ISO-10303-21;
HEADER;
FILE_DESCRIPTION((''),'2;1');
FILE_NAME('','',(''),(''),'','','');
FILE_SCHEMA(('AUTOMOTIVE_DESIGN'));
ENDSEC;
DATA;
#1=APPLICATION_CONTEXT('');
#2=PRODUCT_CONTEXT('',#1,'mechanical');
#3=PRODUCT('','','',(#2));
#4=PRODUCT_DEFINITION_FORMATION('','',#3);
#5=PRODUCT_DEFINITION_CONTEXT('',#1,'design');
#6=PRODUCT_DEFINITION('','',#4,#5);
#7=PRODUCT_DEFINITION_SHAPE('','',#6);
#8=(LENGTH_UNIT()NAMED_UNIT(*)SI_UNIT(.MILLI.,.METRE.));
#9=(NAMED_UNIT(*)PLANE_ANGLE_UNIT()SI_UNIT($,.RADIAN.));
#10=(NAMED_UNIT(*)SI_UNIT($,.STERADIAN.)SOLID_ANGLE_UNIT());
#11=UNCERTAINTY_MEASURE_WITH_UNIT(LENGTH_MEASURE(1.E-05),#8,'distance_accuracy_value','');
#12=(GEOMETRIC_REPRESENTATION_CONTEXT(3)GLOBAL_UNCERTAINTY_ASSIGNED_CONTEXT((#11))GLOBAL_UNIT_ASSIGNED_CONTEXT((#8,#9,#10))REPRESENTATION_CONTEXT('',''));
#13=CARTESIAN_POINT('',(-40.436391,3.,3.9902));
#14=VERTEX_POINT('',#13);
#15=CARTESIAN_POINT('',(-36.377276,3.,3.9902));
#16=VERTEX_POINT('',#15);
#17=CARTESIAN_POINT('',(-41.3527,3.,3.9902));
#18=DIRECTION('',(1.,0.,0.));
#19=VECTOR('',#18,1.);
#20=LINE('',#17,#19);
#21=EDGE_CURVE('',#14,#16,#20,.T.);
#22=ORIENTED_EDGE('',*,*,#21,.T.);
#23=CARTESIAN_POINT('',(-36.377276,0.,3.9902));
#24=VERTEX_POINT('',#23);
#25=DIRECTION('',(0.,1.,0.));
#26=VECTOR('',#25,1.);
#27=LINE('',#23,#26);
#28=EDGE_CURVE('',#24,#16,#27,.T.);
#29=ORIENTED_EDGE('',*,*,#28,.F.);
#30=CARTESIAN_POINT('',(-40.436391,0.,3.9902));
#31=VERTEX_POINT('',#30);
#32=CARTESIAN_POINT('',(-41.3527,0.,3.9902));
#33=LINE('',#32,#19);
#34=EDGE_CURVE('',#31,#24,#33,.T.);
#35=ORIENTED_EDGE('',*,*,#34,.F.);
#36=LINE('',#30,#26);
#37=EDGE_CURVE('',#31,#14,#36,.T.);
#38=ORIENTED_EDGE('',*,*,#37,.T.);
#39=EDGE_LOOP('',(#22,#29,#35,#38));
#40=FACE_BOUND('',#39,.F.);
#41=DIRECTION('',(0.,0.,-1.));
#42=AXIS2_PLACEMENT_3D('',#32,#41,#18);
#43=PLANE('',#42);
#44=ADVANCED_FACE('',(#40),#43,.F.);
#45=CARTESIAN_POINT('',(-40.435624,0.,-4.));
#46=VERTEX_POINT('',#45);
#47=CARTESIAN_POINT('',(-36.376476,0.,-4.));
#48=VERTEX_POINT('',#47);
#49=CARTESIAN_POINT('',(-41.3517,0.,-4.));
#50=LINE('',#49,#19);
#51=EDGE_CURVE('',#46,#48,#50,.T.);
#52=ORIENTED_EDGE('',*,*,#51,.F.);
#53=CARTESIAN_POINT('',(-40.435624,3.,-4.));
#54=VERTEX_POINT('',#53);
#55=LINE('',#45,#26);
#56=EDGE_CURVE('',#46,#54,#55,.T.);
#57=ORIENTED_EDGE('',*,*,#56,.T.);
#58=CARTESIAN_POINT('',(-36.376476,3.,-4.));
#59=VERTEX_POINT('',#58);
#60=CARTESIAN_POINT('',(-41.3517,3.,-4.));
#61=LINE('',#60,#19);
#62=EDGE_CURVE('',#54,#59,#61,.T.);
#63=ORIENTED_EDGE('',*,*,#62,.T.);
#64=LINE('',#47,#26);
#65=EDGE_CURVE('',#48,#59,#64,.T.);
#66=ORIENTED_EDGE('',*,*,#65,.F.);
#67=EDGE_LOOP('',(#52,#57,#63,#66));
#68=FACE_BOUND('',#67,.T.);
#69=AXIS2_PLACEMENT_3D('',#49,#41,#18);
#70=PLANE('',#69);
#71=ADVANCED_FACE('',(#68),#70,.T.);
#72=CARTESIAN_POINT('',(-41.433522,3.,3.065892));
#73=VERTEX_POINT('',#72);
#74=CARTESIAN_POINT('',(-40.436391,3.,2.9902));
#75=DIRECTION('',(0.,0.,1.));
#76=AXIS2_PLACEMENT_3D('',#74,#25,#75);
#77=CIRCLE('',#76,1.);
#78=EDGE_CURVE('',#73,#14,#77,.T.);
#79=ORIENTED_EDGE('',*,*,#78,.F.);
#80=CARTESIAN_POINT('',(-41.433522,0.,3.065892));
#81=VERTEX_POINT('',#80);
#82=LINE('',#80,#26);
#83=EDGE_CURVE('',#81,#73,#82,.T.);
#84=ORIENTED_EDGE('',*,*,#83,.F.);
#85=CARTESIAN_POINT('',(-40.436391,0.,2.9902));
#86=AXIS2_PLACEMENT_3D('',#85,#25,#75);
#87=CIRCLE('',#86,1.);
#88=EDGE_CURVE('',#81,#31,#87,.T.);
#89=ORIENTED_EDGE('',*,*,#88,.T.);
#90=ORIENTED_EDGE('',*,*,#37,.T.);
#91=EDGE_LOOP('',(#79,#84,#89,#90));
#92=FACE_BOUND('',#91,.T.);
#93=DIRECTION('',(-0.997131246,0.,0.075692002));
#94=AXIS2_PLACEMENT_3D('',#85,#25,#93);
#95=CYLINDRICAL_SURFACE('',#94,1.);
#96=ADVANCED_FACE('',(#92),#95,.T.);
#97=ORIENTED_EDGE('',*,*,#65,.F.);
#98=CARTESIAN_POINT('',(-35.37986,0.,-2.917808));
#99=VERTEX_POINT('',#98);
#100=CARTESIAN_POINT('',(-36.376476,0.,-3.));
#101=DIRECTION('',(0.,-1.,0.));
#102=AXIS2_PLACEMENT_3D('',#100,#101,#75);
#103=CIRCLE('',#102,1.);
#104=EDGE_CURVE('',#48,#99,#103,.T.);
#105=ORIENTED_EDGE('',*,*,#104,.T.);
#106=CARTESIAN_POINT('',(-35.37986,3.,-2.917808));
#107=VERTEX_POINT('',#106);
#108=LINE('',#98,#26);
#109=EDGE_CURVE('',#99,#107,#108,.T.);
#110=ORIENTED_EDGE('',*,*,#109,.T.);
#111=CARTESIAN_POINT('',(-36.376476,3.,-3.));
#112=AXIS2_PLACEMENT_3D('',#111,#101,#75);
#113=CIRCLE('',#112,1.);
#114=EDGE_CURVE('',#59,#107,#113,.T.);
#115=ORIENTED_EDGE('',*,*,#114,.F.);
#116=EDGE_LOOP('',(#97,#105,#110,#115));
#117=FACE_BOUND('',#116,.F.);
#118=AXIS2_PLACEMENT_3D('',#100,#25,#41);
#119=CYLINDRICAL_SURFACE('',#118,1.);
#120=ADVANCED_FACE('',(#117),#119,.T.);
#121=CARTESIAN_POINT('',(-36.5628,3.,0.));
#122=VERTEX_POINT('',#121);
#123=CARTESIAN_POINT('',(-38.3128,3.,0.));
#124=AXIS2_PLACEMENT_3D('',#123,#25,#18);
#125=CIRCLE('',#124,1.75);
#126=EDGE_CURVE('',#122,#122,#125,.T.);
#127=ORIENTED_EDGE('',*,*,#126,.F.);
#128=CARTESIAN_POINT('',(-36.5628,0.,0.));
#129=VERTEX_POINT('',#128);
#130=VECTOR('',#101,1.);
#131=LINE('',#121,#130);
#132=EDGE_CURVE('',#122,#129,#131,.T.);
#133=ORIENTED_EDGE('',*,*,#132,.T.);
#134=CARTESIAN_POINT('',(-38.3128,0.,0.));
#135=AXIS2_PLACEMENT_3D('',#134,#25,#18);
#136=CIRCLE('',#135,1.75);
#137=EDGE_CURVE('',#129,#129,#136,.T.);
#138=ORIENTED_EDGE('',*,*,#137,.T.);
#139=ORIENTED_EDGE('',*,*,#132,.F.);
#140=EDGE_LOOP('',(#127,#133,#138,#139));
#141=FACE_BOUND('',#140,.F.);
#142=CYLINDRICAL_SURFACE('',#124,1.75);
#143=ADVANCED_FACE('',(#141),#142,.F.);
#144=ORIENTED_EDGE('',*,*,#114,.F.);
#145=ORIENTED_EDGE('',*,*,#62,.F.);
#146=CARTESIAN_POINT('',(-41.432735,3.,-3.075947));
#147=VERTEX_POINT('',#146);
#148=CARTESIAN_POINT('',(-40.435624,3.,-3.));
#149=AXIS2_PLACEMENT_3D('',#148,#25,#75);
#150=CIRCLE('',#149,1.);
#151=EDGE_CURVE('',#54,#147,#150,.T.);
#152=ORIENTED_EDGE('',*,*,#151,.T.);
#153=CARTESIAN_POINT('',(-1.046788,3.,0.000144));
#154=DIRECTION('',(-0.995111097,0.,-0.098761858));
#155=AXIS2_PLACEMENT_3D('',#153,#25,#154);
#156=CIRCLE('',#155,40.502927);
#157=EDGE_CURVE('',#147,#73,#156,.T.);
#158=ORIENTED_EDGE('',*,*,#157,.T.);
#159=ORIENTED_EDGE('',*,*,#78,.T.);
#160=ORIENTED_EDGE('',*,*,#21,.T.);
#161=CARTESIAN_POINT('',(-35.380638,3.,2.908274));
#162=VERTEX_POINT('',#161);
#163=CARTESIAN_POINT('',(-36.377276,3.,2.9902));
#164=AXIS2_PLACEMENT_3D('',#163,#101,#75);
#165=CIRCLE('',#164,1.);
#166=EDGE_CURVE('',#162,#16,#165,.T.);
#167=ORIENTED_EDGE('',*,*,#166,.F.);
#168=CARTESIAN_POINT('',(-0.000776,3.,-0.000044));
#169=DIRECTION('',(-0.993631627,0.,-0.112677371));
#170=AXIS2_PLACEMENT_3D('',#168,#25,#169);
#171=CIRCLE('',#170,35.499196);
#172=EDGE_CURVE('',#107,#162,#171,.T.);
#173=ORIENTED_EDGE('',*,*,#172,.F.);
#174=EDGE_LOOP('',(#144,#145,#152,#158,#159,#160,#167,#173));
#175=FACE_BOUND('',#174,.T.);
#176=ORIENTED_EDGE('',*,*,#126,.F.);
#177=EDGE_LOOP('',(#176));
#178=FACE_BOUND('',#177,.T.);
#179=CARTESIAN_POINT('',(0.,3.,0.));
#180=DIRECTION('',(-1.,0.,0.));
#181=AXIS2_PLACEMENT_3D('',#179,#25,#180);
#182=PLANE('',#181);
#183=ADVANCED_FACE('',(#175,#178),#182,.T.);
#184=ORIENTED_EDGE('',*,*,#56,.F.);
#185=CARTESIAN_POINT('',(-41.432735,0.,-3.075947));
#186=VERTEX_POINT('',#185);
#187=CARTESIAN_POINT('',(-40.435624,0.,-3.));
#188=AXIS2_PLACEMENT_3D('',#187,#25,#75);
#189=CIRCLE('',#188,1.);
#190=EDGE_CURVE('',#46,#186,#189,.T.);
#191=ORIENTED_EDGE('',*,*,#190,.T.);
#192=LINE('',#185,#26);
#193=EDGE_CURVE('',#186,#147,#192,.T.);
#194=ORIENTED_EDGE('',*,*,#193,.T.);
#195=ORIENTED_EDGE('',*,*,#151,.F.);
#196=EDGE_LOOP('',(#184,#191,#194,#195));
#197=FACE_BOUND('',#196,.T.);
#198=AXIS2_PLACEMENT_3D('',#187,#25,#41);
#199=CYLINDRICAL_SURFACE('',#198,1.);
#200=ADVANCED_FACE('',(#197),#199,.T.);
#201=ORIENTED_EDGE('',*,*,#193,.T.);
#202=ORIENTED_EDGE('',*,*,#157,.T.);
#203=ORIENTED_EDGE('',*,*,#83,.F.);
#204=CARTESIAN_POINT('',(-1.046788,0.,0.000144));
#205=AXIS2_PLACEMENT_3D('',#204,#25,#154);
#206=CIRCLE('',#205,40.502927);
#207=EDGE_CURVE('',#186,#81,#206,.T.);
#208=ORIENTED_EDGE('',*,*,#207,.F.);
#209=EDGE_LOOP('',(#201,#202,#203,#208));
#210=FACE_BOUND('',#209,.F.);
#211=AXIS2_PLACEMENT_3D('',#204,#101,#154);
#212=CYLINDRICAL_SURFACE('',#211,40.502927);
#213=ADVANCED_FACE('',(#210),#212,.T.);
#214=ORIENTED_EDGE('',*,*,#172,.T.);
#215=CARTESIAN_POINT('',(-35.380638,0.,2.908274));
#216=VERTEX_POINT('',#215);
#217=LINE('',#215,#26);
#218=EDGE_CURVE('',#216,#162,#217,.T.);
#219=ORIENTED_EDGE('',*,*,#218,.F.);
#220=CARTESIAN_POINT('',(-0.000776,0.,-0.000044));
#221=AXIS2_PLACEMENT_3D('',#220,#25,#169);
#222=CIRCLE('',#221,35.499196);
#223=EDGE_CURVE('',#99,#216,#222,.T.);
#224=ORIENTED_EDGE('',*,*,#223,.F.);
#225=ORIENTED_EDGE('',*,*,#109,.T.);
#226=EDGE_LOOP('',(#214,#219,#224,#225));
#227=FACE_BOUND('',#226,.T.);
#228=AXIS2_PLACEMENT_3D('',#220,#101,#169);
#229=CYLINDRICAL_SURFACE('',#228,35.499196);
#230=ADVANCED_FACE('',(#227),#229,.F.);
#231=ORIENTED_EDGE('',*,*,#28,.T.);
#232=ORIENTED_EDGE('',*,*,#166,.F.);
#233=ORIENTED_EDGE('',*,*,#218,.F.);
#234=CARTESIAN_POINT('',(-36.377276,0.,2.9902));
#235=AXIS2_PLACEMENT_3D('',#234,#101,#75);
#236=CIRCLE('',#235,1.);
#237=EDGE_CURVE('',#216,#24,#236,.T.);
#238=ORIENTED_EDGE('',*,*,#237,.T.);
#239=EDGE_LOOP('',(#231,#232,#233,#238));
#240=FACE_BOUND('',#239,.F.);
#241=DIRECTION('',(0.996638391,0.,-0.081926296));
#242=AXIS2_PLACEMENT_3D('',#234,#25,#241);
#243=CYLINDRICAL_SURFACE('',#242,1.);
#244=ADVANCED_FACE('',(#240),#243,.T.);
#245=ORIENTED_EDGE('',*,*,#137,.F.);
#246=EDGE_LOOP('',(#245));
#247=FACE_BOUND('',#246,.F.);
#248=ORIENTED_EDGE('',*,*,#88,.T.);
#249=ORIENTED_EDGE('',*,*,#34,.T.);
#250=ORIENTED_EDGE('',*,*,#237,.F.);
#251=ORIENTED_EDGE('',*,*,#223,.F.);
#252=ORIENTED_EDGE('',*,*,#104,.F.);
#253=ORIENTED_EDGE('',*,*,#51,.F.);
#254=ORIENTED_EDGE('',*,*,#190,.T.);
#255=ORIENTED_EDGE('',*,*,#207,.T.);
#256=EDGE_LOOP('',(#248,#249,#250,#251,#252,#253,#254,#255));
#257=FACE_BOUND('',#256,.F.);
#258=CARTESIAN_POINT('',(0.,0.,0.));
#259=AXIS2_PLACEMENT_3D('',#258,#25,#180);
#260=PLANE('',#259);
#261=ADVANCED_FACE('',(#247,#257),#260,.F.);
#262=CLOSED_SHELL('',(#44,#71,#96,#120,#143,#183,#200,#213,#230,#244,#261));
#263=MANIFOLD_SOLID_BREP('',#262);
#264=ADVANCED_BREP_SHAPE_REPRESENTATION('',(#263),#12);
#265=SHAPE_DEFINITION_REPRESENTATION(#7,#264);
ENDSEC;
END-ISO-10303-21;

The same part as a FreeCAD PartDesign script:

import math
import FreeCAD as App
import Part
import Sketcher


def edges_at(feature, points):
    """Names of the edges that pass closest to the given points."""
    edges = feature.Shape.Edges
    near = lambda p: min(range(len(edges)), key=lambda i: edges[i].distToShape(Part.Vertex(*p))[0])
    return sorted({f"Edge{near(p) + 1}" for p in points})

doc = App.newDocument("Part")
body = doc.addObject("PartDesign::Body", "Body")

# Sketch on XZ plane
sketch1 = body.newObject("Sketcher::SketchObject", "Sketch")
sketch1.AttachmentSupport = (doc.getObject("XZ_Plane"), [""])
sketch1.MapMode = "FlatFace"
sketch1.addGeometry(Part.LineSegment(App.Vector(-35.2739, -4, 0), App.Vector(-41.3517, -4, 0)), False)
sketch1.addGeometry(Part.ArcOfCircle(Part.Circle(App.Vector(-1.046788, 0.000144, 0), App.Vector(0, 0, 1), 40.502927), math.radians(174.346464), math.radians(185.667877)), False)
sketch1.addGeometry(Part.LineSegment(App.Vector(-41.3527, 3.9902, 0), App.Vector(-35.275, 3.9902, 0)), False)
sketch1.addGeometry(Part.ArcOfCircle(Part.Circle(App.Vector(0, 0, 0), App.Vector(0, 0, 1), 35.499972), math.radians(173.546309), math.radians(186.469607)), False)
sketch1.addConstraint(Sketcher.Constraint("Coincident", 0, 2, 1, 2))
sketch1.addConstraint(Sketcher.Constraint("Coincident", 1, 1, 2, 1))
sketch1.addConstraint(Sketcher.Constraint("Coincident", 2, 2, 3, 1))
sketch1.addConstraint(Sketcher.Constraint("Coincident", 3, 2, 0, 1))
sketch1.addConstraint(Sketcher.Constraint("Horizontal", 0))
sketch1.addConstraint(Sketcher.Constraint("Horizontal", 2))
sketch1.addConstraint(Sketcher.Constraint("Coincident", 3, 3, -1, 1))
sketch1.addConstraint(Sketcher.Constraint("PointOnObject", 1, 3, -1))
sketch1.addConstraint(Sketcher.Constraint("Radius", 3, 35.5))
sketch1.addConstraint(Sketcher.Constraint("DistanceY", 0, 2, -1, 1, 4.0))
sketch1.addConstraint(Sketcher.Constraint("Radius", 1, 40.503))
sketch1.addConstraint(Sketcher.Constraint("DistanceY", 1, 3, 1, 1, 3.99))
sketch1.addConstraint(Sketcher.Constraint("DistanceX", 0, 2, 0, 1, 6.0778))
pad1 = body.newObject("PartDesign::Pad", "Pad")
pad1.Profile = sketch1
pad1.Length = 3
pad1.Reversed = True

# Sketch on XZ plane
sketch2 = body.newObject("Sketcher::SketchObject", "Sketch001")
sketch2.AttachmentSupport = (doc.getObject("XZ_Plane"), [""])
sketch2.MapMode = "FlatFace"
sketch2.AttachmentOffset = App.Placement(App.Vector(0, 0, -3), App.Rotation())
sketch2.addGeometry(Part.Circle(App.Vector(-38.3, 0, 0), App.Vector(0, 0, 1), 1.8), False)
sketch2.addConstraint(Sketcher.Constraint("PointOnObject", 0, 3, -1))
sketch2.addConstraint(Sketcher.Constraint("Diameter", 0, 3.5))
sketch2.addConstraint(Sketcher.Constraint("DistanceX", 0, 3, -1, 1, 38.3128))
pocket1 = body.newObject("PartDesign::Pocket", "Pocket")
pocket1.Profile = sketch2
pocket1.Type = "ThroughAll"
pocket1.Midplane = True
doc.recompute()

fillet = body.newObject("PartDesign::Fillet", "Fillet")
fillet.Base = (pocket1, edges_at(pocket1, [
    (-41.353, 1.5, 3.99),
    (-41.352, 1.5, -4),
    (-35.274, 1.5, -4),
    (-35.275, 1.5, 3.99),
]))
fillet.Radius = 1

doc.recompute()
